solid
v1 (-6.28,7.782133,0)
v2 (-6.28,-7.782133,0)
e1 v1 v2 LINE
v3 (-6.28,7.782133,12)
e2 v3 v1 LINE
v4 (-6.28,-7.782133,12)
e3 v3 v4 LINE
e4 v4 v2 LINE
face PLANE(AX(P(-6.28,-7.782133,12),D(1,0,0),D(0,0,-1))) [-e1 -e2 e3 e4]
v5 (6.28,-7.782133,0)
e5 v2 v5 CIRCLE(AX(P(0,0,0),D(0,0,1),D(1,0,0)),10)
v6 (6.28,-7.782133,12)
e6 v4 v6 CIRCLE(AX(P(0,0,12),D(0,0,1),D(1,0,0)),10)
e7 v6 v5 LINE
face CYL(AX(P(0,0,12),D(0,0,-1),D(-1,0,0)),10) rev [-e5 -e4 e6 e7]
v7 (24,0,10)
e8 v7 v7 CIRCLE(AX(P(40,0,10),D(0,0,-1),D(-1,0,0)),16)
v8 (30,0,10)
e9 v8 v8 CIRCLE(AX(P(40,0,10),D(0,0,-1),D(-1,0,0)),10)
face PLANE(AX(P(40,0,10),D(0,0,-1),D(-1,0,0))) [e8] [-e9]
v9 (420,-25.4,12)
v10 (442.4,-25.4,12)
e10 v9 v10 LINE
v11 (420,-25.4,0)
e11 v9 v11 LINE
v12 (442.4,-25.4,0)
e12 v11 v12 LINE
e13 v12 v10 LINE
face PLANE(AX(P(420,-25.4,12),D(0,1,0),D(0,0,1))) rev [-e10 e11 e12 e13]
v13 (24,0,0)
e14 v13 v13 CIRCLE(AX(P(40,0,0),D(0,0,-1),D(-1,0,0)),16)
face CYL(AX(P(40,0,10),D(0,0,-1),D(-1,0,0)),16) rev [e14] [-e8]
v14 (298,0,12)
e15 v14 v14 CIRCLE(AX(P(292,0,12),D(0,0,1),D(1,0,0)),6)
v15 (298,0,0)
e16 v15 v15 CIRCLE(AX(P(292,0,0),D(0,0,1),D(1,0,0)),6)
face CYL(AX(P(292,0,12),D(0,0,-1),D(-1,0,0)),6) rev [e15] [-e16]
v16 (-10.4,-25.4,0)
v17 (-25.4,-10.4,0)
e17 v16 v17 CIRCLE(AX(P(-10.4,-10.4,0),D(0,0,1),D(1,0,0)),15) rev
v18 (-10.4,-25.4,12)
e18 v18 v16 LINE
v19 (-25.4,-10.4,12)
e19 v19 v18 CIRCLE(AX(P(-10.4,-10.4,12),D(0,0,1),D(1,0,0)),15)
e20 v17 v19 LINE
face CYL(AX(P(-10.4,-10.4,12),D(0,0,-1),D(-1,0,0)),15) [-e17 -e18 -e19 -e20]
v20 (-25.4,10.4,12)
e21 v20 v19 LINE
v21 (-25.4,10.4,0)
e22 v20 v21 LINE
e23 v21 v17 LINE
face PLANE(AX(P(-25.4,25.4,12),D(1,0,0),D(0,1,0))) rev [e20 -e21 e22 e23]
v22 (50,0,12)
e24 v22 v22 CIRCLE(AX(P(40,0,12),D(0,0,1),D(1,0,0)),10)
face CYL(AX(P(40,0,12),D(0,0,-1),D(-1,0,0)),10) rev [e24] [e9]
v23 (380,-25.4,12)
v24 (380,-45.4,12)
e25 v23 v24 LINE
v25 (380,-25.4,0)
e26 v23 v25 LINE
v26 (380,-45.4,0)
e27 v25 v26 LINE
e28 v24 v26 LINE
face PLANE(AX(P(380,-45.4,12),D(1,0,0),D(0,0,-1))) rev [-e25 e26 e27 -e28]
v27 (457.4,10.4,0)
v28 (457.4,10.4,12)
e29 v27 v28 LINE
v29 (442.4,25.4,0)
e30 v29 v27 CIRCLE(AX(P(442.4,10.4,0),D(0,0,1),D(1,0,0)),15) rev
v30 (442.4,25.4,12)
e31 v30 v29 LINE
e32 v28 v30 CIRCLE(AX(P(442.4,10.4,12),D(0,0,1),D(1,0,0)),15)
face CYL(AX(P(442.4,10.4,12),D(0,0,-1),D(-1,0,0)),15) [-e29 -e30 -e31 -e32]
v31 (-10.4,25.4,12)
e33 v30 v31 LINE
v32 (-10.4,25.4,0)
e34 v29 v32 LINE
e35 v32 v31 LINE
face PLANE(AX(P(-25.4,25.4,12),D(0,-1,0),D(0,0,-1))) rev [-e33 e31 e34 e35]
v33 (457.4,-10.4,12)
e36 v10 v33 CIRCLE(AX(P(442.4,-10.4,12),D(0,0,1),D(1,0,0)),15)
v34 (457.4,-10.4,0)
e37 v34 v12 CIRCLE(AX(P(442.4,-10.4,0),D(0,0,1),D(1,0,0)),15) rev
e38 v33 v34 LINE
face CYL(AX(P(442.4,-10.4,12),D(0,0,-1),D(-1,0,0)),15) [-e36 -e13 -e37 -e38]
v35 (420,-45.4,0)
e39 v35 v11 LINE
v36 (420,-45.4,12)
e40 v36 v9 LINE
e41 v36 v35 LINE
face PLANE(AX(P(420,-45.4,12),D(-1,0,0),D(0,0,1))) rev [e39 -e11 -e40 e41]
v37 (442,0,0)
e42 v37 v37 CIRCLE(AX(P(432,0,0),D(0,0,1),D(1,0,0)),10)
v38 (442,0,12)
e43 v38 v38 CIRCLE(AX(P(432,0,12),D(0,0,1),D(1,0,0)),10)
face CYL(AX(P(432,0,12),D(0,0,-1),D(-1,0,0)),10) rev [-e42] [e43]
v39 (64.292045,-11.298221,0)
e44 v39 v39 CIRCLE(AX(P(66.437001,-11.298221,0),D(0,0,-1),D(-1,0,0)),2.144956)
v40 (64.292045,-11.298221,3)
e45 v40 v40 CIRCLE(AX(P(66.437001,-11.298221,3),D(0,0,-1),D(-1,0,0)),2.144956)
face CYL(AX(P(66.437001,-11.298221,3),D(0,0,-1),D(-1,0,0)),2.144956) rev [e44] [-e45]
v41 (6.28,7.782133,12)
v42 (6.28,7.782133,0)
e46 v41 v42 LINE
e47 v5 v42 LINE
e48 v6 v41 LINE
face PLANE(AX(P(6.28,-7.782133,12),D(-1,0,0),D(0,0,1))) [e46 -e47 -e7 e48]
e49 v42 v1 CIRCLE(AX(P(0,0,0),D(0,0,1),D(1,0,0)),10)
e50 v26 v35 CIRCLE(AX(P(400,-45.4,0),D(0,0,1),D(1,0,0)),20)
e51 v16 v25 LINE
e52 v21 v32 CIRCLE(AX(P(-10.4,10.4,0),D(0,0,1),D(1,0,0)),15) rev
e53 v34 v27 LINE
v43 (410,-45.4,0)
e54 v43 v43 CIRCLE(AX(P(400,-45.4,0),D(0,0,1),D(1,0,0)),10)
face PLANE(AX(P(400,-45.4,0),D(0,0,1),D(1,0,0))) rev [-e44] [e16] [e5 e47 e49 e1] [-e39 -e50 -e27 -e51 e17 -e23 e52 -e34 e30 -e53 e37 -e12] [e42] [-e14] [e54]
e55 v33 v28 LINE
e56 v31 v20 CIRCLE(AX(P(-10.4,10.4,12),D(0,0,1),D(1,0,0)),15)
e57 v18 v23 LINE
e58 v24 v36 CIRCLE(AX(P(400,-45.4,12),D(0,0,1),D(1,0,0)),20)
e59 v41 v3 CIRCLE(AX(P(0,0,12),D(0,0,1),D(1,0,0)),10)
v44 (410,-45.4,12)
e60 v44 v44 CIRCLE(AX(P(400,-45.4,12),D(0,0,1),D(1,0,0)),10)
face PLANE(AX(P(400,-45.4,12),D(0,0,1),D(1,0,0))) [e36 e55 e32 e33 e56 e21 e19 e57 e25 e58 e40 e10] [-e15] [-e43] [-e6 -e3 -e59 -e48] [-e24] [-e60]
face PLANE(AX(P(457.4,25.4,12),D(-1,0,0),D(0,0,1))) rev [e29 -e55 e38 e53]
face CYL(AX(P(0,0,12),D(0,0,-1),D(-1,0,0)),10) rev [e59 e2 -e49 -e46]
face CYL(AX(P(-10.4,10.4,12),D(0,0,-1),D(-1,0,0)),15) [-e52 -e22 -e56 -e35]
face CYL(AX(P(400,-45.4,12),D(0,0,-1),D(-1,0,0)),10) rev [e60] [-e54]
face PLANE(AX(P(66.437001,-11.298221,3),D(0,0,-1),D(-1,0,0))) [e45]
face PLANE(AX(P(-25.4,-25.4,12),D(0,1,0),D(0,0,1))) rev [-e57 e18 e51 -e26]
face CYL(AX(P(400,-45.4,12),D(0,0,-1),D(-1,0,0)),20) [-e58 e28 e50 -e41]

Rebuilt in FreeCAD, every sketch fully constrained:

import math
import FreeCAD as App
import Part
import Sketcher

V = App.Vector
Q = App.Units.Quantity


def edges_at(feature, points):
    """Names of the edges that pass closest to the given points."""
    edges = feature.Shape.Edges
    near = lambda p: min(range(len(edges)), key=lambda i: edges[i].distToShape(Part.Vertex(*p))[0])
    return sorted({f"Edge{near(p) + 1}" for p in points})

doc = App.newDocument("Part")
params = doc.addObject("Spreadsheet::Sheet", "Params")
for row, (alias, value) in enumerate([
    ("sketch1_diameter", "20 mm"),
    ("sketch1_diameter2", "12 mm"),
    ("sketch1_radius", "20 mm"),
    ("sketch1_height", "20 mm"),
    ("sketch1_width", "37.4 mm"),
    ("pad1_length", "12 mm"),
    ("pocket1_length", "3 mm"),
    ("sketch3_diameter", "32 mm"),
    ("pocket2_length", "10 mm"),
    ("fillet_radius", "15 mm"),
    ("fillet2_radius", "15 mm"),
], start=1):
    params.set(f"A{row}", alias)
    params.set(f"B{row}", "=" + value)
    params.setAlias(f"B{row}", alias)

body = doc.addObject("PartDesign::Body", "Body")

# Sketch on XY plane
sketch1 = body.newObject("Sketcher::SketchObject", "Sketch")
sketch1.AttachmentSupport = (doc.getObject("XY_Plane"), [""])
sketch1.MapMode = "FlatFace"
sketch1.addGeometry(Part.LineSegment(V(380, -25, 0), V(380, -45, 0)), False)
sketch1.addGeometry(Part.ArcOfCircle(Part.Circle(V(400, -45, 0), V(0, 0, 1), 20), math.radians(180), math.radians(360)), False)
sketch1.addGeometry(Part.LineSegment(V(420, -45, 0), V(420, -25, 0)), False)
sketch1.addGeometry(Part.LineSegment(V(420, -25, 0), V(457, -25, 0)), False)
sketch1.addGeometry(Part.LineSegment(V(457, -25, 0), V(457, 25, 0)), False)
sketch1.addGeometry(Part.LineSegment(V(457, 25, 0), V(-25, 25, 0)), False)
sketch1.addGeometry(Part.LineSegment(V(-25, 25, 0), V(-25, -25, 0)), False)
sketch1.addGeometry(Part.LineSegment(V(-25, -25, 0), V(380, -25, 0)), False)
sketch1.addGeometry(Part.Circle(V(400, -45, 0), V(0, 0, 1), 10), False)
sketch1.addGeometry(Part.Circle(V(432, 0, 0), V(0, 0, 1), 10), False)
sketch1.addGeometry(Part.Circle(V(292, 0, 0), V(0, 0, 1), 6), False)
sketch1.addGeometry(Part.Circle(V(40, 0, 0), V(0, 0, 1), 10), False)
sketch1.addGeometry(Part.LineSegment(V(-6, -8, 0), V(-6, 8, 0)), False)
sketch1.addGeometry(Part.ArcOfCircle(Part.Circle(V(0, 0, 0), V(0, 0, 1), 10), math.radians(51), math.radians(129)), False)
sketch1.addGeometry(Part.LineSegment(V(6, 8, 0), V(6, -8, 0)), False)
sketch1.addGeometry(Part.ArcOfCircle(Part.Circle(V(0, 0, 0), V(0, 0, 1), 10), math.radians(-129), math.radians(-51)), False)
sketch1.addConstraint(Sketcher.Constraint("Tangent", 0, 2, 1, 1))
sketch1.addConstraint(Sketcher.Constraint("Tangent", 1, 2, 2, 1))
sketch1.addConstraint(Sketcher.Constraint("Coincident", 2, 2, 3, 1))
sketch1.addConstraint(Sketcher.Constraint("Coincident", 3, 2, 4, 1))
sketch1.addConstraint(Sketcher.Constraint("Coincident", 4, 2, 5, 1))
sketch1.addConstraint(Sketcher.Constraint("Coincident", 5, 2, 6, 1))
sketch1.addConstraint(Sketcher.Constraint("Coincident", 6, 2, 7, 1))
sketch1.addConstraint(Sketcher.Constraint("Coincident", 7, 2, 0, 1))
sketch1.addConstraint(Sketcher.Constraint("Coincident", 12, 2, 13, 2))
sketch1.addConstraint(Sketcher.Constraint("Coincident", 13, 1, 14, 1))
sketch1.addConstraint(Sketcher.Constraint("Coincident", 14, 2, 15, 2))
sketch1.addConstraint(Sketcher.Constraint("Coincident", 15, 1, 12, 1))
sketch1.addConstraint(Sketcher.Constraint("Vertical", 0))
sketch1.addConstraint(Sketcher.Constraint("Vertical", 2))
sketch1.addConstraint(Sketcher.Constraint("Horizontal", 3))
sketch1.addConstraint(Sketcher.Constraint("Vertical", 4))
sketch1.addConstraint(Sketcher.Constraint("Horizontal", 5))
sketch1.addConstraint(Sketcher.Constraint("Vertical", 6))
sketch1.addConstraint(Sketcher.Constraint("Horizontal", 7))
sketch1.addConstraint(Sketcher.Constraint("Vertical", 12))
sketch1.addConstraint(Sketcher.Constraint("Vertical", 14))
sketch1.addConstraint(Sketcher.Constraint("Coincident", 13, 3, -1, 1))
sketch1.addConstraint(Sketcher.Constraint("Coincident", 15, 3, -1, 1))
sketch1.addConstraint(Sketcher.Constraint("Coincident", 8, 3, 1, 3))
sketch1.addConstraint(Sketcher.Constraint("Equal", 8, 9))
sketch1.addConstraint(Sketcher.Constraint("Equal", 9, 11))
sketch1.addConstraint(Sketcher.Constraint("Equal", 11, 13))
sketch1.addConstraint(Sketcher.Constraint("Equal", 13, 15))
sketch1.addConstraint(Sketcher.Constraint("PointOnObject", 9, 3, -1))
sketch1.addConstraint(Sketcher.Constraint("PointOnObject", 10, 3, -1))
sketch1.addConstraint(Sketcher.Constraint("PointOnObject", 11, 3, -1))
sketch1.addConstraint(Sketcher.Constraint("Horizontal", 3, 2, 6, 2))
sketch1.addConstraint(Sketcher.Constraint("Horizontal", 12, 2, 13, 1))
sketch1.addConstraint(Sketcher.Constraint("Diameter", 8, Q("20 mm")))
sketch1.addConstraint(Sketcher.Constraint("Diameter", 10, Q("12 mm")))
sketch1.addConstraint(Sketcher.Constraint("Radius", 1, Q("20 mm")))
sketch1.addConstraint(Sketcher.Constraint("DistanceY", 0, 2, 0, 1, Q("20 mm")))
sketch1.addConstraint(Sketcher.Constraint("DistanceX", 3, 1, 3, 2, Q("37.4 mm")))
sketch1.addConstraint(Sketcher.Constraint("DistanceX", 5, 2, 5, 1, Q("482.8 mm")))
sketch1.addConstraint(Sketcher.Constraint("DistanceY", 4, 1, 4, 2, Q("50.8 mm")))
sketch1.addConstraint(Sketcher.Constraint("DistanceX", -1, 1, 1, 3, Q("400 mm")))
sketch1.addConstraint(Sketcher.Constraint("DistanceX", -1, 1, 9, 3, Q("432 mm")))
sketch1.addConstraint(Sketcher.Constraint("DistanceX", -1, 1, 10, 3, Q("292 mm")))
sketch1.addConstraint(Sketcher.Constraint("DistanceX", -1, 1, 11, 3, Q("40 mm")))
sketch1.addConstraint(Sketcher.Constraint("DistanceY", 1, 3, -1, 1, Q("45.4 mm")))
sketch1.addConstraint(Sketcher.Constraint("DistanceX", 12, 2, -1, 1, Q("6.28 mm")))
sketch1.setExpression("Constraints[33]", "Params.sketch1_diameter")
sketch1.setExpression("Constraints[34]", "Params.sketch1_diameter2")
sketch1.setExpression("Constraints[35]", "Params.sketch1_radius")
sketch1.setExpression("Constraints[36]", "Params.sketch1_height")
sketch1.setExpression("Constraints[37]", "Params.sketch1_width")
pad1 = body.newObject("PartDesign::Pad", "Pad")
pad1.Profile = sketch1
pad1.setExpression("Length", "Params.pad1_length")

# Sketch on XY plane
sketch2 = body.newObject("Sketcher::SketchObject", "Sketch001")
sketch2.AttachmentSupport = (doc.getObject("XY_Plane"), [""])
sketch2.MapMode = "FlatFace"
sketch2.addGeometry(Part.Circle(V(66.4, -11.3, 0), V(0, 0, 1), 2.1), False)
sketch2.addConstraint(Sketcher.Constraint("Diameter", 0, Q("4.289912 mm")))
sketch2.addConstraint(Sketcher.Constraint("DistanceX", -1, 1, 0, 3, Q("66.437001 mm")))
sketch2.addConstraint(Sketcher.Constraint("DistanceY", 0, 3, -1, 1, Q("11.298221 mm")))
pocket1 = body.newObject("PartDesign::Pocket", "Pocket")
pocket1.Profile = sketch2
pocket1.setExpression("Length", "Params.pocket1_length")
pocket1.Reversed = True

# Sketch on XY plane
sketch3 = body.newObject("Sketcher::SketchObject", "Sketch002")
sketch3.AttachmentSupport = (doc.getObject("XY_Plane"), [""])
sketch3.MapMode = "FlatFace"
sketch3.addGeometry(Part.Circle(V(40, 0, 0), V(0, 0, 1), 16), False)
sketch3.addConstraint(Sketcher.Constraint("PointOnObject", 0, 3, -1))
sketch3.addConstraint(Sketcher.Constraint("Diameter", 0, Q("32 mm")))
sketch3.addConstraint(Sketcher.Constraint("DistanceX", -1, 1, 0, 3, Q("40 mm")))
sketch3.setExpression("Constraints[1]", "Params.sketch3_diameter")
pocket2 = body.newObject("PartDesign::Pocket", "Pocket001")
pocket2.Profile = sketch3
pocket2.setExpression("Length", "Params.pocket2_length")
pocket2.Reversed = True
doc.recompute()

fillet = body.newObject("PartDesign::Fillet", "Fillet")
fillet.Base = (pocket2, edges_at(pocket2, [(-25.4, 25.4, 6), (-25.4, -25.4, 6)]))
fillet.setExpression("Radius", "Params.fillet_radius")
doc.recompute()

fillet2 = body.newObject("PartDesign::Fillet", "Fillet001")
fillet2.Base = (fillet, edges_at(fillet, [(457.4, 25.4, 6), (457.4, -25.4, 6)]))
fillet2.setExpression("Radius", "Params.fillet2_radius")

doc.recompute()
